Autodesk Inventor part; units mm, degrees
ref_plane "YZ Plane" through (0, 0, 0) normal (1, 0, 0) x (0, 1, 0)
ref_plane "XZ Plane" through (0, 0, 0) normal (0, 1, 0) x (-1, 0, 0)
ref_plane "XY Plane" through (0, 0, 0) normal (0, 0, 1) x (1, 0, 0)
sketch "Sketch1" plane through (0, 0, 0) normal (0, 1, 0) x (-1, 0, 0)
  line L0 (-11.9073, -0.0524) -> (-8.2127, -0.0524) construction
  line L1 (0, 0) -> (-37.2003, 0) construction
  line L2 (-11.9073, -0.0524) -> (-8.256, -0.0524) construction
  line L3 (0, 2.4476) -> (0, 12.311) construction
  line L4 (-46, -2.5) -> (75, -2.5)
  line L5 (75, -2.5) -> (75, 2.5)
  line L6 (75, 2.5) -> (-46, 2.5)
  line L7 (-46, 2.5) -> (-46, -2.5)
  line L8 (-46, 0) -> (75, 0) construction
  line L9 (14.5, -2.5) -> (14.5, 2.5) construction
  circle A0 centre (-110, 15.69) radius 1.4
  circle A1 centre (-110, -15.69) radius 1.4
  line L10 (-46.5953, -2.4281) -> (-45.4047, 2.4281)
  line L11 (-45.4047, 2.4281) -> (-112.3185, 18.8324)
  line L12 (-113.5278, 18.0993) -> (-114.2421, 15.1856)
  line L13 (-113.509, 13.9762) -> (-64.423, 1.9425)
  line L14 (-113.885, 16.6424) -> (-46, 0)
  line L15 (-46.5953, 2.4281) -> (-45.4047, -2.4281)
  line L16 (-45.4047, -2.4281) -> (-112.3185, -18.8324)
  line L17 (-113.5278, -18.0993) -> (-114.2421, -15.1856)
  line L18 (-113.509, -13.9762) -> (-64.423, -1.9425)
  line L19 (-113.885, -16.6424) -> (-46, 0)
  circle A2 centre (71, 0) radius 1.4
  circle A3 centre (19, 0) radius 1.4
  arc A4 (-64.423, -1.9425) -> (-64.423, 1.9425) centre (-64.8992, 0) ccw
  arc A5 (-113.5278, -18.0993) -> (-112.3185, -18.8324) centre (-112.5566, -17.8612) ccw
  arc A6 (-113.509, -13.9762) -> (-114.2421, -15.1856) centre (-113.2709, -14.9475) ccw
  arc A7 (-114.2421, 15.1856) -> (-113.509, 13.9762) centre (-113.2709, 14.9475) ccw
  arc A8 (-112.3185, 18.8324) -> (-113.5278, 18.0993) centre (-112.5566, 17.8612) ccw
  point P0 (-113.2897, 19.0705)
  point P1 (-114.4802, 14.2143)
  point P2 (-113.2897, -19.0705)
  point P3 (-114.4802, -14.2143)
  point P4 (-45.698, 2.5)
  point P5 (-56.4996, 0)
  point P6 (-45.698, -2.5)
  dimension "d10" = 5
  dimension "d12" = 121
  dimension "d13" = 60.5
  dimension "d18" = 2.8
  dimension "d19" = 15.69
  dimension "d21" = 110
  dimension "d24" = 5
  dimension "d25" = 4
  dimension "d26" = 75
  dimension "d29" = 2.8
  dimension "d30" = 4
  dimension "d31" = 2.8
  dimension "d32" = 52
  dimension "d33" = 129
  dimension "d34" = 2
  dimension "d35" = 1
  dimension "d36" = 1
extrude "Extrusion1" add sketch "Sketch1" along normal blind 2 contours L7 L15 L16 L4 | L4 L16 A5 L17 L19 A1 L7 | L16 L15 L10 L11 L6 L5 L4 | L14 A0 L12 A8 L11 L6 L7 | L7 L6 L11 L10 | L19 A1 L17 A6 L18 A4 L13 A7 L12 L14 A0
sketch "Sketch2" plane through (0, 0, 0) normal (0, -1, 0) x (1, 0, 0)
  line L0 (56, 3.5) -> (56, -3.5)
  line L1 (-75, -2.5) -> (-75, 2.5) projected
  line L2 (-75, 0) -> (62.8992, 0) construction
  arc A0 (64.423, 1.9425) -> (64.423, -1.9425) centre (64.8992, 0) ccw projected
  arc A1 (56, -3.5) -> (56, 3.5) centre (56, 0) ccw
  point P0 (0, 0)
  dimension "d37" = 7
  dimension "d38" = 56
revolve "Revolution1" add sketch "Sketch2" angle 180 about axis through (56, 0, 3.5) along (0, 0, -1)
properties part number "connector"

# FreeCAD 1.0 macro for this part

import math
import FreeCAD as App
import Part
import Sketcher
from FreeCAD import Vector
Q = App.Units.Quantity

doc = App.newDocument("Part")
body = doc.addObject("PartDesign::Body", "Body")

# Sketch on XZ plane
sketch1 = body.newObject("Sketcher::SketchObject", "Sketch")
sketch1.AttachmentSupport = (doc.getObject("XZ_Plane"), [""])
sketch1.MapMode = "FlatFace"
sketch1.addGeometry(Part.LineSegment(Vector(112.3, -18.8, 0), Vector(45.7, -2.5, 0)), False)
sketch1.addGeometry(Part.LineSegment(Vector(45.7, -2.5, 0), Vector(-75, -2.5, 0)), False)
sketch1.addGeometry(Part.LineSegment(Vector(-75, -2.5, 0), Vector(-75, 2.5, 0)), False)
sketch1.addGeometry(Part.LineSegment(Vector(-75, 2.5, 0), Vector(45.7, 2.5, 0)), False)
sketch1.addGeometry(Part.LineSegment(Vector(45.7, 2.5, 0), Vector(112.3, 18.8, 0)), False)
sketch1.addGeometry(Part.ArcOfCircle(Part.Circle(Vector(112.6, 17.9, 0), Vector(0, 0, 1), 1), math.radians(14), math.radians(104)), False)
sketch1.addGeometry(Part.LineSegment(Vector(113.5, 18.1, 0), Vector(114.2, 15.2, 0)), False)
sketch1.addGeometry(Part.ArcOfCircle(Part.Circle(Vector(113.3, 14.9, 0), Vector(0, 0, 1), 1), math.radians(-76), math.radians(14)), False)
sketch1.addGeometry(Part.LineSegment(Vector(113.5, 14, 0), Vector(64.4, 1.9, 0)), False)
sketch1.addGeometry(Part.ArcOfCircle(Part.Circle(Vector(64.9, 0, 0), Vector(0, 0, 1), 2), math.radians(104), math.radians(256)), False)
sketch1.addGeometry(Part.LineSegment(Vector(64.4, -1.9, 0), Vector(113.5, -14, 0)), False)
sketch1.addGeometry(Part.ArcOfCircle(Part.Circle(Vector(113.3, -14.9, 0), Vector(0, 0, 1), 1), math.radians(-14), math.radians(76)), False)
sketch1.addGeometry(Part.LineSegment(Vector(114.2, -15.2, 0), Vector(113.5, -18.1, 0)), False)
sketch1.addGeometry(Part.ArcOfCircle(Part.Circle(Vector(112.6, -17.9, 0), Vector(0, 0, 1), 1), math.radians(-104), math.radians(-14)), False)
sketch1.addGeometry(Part.Circle(Vector(110, -15.7, 0), Vector(0, 0, 1), 1.4), False)
sketch1.addGeometry(Part.Circle(Vector(-19, 0, 0), Vector(0, 0, 1), 1.4), False)
sketch1.addGeometry(Part.Circle(Vector(-71, 0, 0), Vector(0, 0, 1), 1.4), False)
sketch1.addGeometry(Part.Circle(Vector(110, 15.7, 0), Vector(0, 0, 1), 1.4), False)
sketch1.addConstraint(Sketcher.Constraint("Coincident", 0, 2, 1, 1))
sketch1.addConstraint(Sketcher.Constraint("Coincident", 1, 2, 2, 1))
sketch1.addConstraint(Sketcher.Constraint("Coincident", 2, 2, 3, 1))
sketch1.addConstraint(Sketcher.Constraint("Coincident", 3, 2, 4, 1))
sketch1.addConstraint(Sketcher.Constraint("Tangent", 4, 2, 5, 2))
sketch1.addConstraint(Sketcher.Constraint("Tangent", 5, 1, 6, 1))
sketch1.addConstraint(Sketcher.Constraint("Tangent", 6, 2, 7, 2))
sketch1.addConstraint(Sketcher.Constraint("Tangent", 7, 1, 8, 1))
sketch1.addConstraint(Sketcher.Constraint("Tangent", 8, 2, 9, 1))
sketch1.addConstraint(Sketcher.Constraint("Tangent", 9, 2, 10, 1))
sketch1.addConstraint(Sketcher.Constraint("Tangent", 10, 2, 11, 2))
sketch1.addConstraint(Sketcher.Constraint("Tangent", 11, 1, 12, 1))
sketch1.addConstraint(Sketcher.Constraint("Tangent", 12, 2, 13, 2))
sketch1.addConstraint(Sketcher.Constraint("Tangent", 13, 1, 0, 1))
sketch1.addConstraint(Sketcher.Constraint("Horizontal", 1))
sketch1.addConstraint(Sketcher.Constraint("Vertical", 2))
sketch1.addConstraint(Sketcher.Constraint("Horizontal", 3))
sketch1.addConstraint(Sketcher.Constraint("Equal", 5, 7))
sketch1.addConstraint(Sketcher.Constraint("Equal", 7, 11))
sketch1.addConstraint(Sketcher.Constraint("Equal", 11, 13))
sketch1.addConstraint(Sketcher.Constraint("Equal", 14, 15))
sketch1.addConstraint(Sketcher.Constraint("Equal", 15, 16))
sketch1.addConstraint(Sketcher.Constraint("Equal", 16, 17))
sketch1.addConstraint(Sketcher.Constraint("Symmetric", 7, 3, 11, 3, -1))
sketch1.addConstraint(Sketcher.Constraint("Symmetric", 5, 3, 13, 3, -1))
sketch1.addConstraint(Sketcher.Constraint("Symmetric", 14, 3, 17, 3, -1))
sketch1.addConstraint(Sketcher.Constraint("Symmetric", 0, 2, 3, 2, -1))
sketch1.addConstraint(Sketcher.Constraint("PointOnObject", 9, 3, -1))
sketch1.addConstraint(Sketcher.Constraint("PointOnObject", 15, 3, -1))
sketch1.addConstraint(Sketcher.Constraint("PointOnObject", 16, 3, -1))
sketch1.addConstraint(Sketcher.Constraint("Perpendicular", 4, 6))
sketch1.addConstraint(Sketcher.Constraint("Perpendicular", 6, 8))
sketch1.addConstraint(Sketcher.Constraint("Radius", 5, Q("1 mm")))
sketch1.addConstraint(Sketcher.Constraint("Radius", 9, Q("2 mm")))
sketch1.addConstraint(Sketcher.Constraint("Diameter", 14, Q("2.8 mm")))
sketch1.addConstraint(Sketcher.Constraint("DistanceY", 2, 1, 2, 2, Q("5 mm")))
sketch1.addConstraint(Sketcher.Constraint("DistanceX", -1, 1, 14, 3, Q("110 mm")))
sketch1.addConstraint(Sketcher.Constraint("DistanceX", 1, 2, -1, 1, Q("75 mm")))
sketch1.addConstraint(Sketcher.Constraint("DistanceX", 15, 3, 14, 3, Q("129 mm")))
sketch1.addConstraint(Sketcher.Constraint("DistanceX", 16, 3, 15, 3, Q("52 mm")))
sketch1.addConstraint(Sketcher.Constraint("DistanceY", 14, 3, -1, 1, Q("15.69 mm")))
sketch1.addConstraint(Sketcher.Constraint("Distance", 6, Q("3 mm")))
sketch1.addConstraint(Sketcher.Constraint("DistanceX", 1, 2, 1, 1, Q("120.698 mm")))
sketch1.addConstraint(Sketcher.Constraint("DistanceY", 11, 3, 4, 2, Q("33.78 mm")))
sketch1.addConstraint(Sketcher.Constraint("DistanceX", -1, 1, 7, 3, Q("113.271 mm")))
pad1 = body.newObject("PartDesign::Pad", "Pad")
pad1.Profile = sketch1
pad1.Length = 2
pad1.Reversed = True

# Sketch on XZ plane
sketch2 = body.newObject("Sketcher::SketchObject", "Sketch001")
sketch2.AttachmentSupport = (doc.getObject("XZ_Plane"), [""])
sketch2.MapMode = "FlatFace"
sketch2.addGeometry(Part.ArcOfCircle(Part.Circle(Vector(56, 0, 0), Vector(0, 0, 1), 3.5), math.radians(-90), math.radians(90)), False)
sketch2.addGeometry(Part.LineSegment(Vector(56, 3.5, 0), Vector(56, -3.5, 0)), False)
sketch2.addGeometry(Part.LineSegment(Vector(56, 3.5, 0), Vector(56, -3.5, 0)), True)  # axis
sketch2.addConstraint(Sketcher.Constraint("Coincident", 0, 1, 1, 2))
sketch2.addConstraint(Sketcher.Constraint("Coincident", 1, 1, 0, 2))
sketch2.addConstraint(Sketcher.Constraint("Vertical", 1))
sketch2.addConstraint(Sketcher.Constraint("Vertical", 2))
sketch2.addConstraint(Sketcher.Constraint("Coincident", 2, 1, 1, 1))
sketch2.addConstraint(Sketcher.Constraint("PointOnObject", 0, 3, -1))
sketch2.addConstraint(Sketcher.Constraint("Equal", 1, 2))
sketch2.addConstraint(Sketcher.Constraint("Radius", 0, Q("3.5 mm")))
sketch2.addConstraint(Sketcher.Constraint("DistanceX", -1, 1, 0, 3, Q("56 mm")))
sketch2.addConstraint(Sketcher.Constraint("DistanceX", -1, 1, 0, 1, Q("56 mm")))
revolution = body.newObject("PartDesign::Revolution", "Revolution")
revolution.Profile = sketch2
revolution.ReferenceAxis = (sketch2, ["Axis0"])
revolution.Angle = 180

doc.recompute()
